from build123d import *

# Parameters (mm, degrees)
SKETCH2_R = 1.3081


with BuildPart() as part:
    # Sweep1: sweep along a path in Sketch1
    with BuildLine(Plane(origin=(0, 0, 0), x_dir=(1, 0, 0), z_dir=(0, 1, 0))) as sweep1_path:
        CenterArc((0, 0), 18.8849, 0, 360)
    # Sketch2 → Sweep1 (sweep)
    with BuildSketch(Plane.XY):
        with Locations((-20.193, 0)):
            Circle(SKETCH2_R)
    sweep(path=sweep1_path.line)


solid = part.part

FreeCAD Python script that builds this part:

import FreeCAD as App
import Part
import Sketcher

V = App.Vector
Q = App.Units.Quantity

doc = App.newDocument("Part")
body = doc.addObject("PartDesign::Body", "Body")

# Sketch on XY plane
sketch1 = body.newObject("Sketcher::SketchObject", "Sketch")
sketch1.AttachmentSupport = (doc.getObject("XY_Plane"), [""])
sketch1.MapMode = "FlatFace"
sketch1.addGeometry(Part.Circle(V(-20.2, 0, 0), V(0, 0, 1), 1.3), False)
sketch1.addConstraint([
    Sketcher.Constraint("PointOnObject", 0, 3, -1),
    Sketcher.Constraint("Diameter", 0, Q("0.103 in")),
    Sketcher.Constraint("DistanceX", 0, 3, -1, 1, Q("0.795 in")),
])

# Sketch on XZ plane
sketch2 = body.newObject("Sketcher::SketchObject", "Sketch001")
sketch2.AttachmentSupport = (doc.getObject("XZ_Plane"), [""])
sketch2.MapMode = "FlatFace"
sketch2.addGeometry(Part.Circle(V(0, 0, 0), V(0, 0, 1), 19), False)
sketch2.addConstraint([
    Sketcher.Constraint("Coincident", 0, 3, -1, 1),
    Sketcher.Constraint("Diameter", 0, Q("1.487 in")),
])
doc.recompute()

additivepipe = body.newObject("PartDesign::AdditivePipe", "AdditivePipe")
additivepipe.Profile = sketch1
additivepipe.Spine = (sketch2, ["Edge1"])

doc.recompute()
